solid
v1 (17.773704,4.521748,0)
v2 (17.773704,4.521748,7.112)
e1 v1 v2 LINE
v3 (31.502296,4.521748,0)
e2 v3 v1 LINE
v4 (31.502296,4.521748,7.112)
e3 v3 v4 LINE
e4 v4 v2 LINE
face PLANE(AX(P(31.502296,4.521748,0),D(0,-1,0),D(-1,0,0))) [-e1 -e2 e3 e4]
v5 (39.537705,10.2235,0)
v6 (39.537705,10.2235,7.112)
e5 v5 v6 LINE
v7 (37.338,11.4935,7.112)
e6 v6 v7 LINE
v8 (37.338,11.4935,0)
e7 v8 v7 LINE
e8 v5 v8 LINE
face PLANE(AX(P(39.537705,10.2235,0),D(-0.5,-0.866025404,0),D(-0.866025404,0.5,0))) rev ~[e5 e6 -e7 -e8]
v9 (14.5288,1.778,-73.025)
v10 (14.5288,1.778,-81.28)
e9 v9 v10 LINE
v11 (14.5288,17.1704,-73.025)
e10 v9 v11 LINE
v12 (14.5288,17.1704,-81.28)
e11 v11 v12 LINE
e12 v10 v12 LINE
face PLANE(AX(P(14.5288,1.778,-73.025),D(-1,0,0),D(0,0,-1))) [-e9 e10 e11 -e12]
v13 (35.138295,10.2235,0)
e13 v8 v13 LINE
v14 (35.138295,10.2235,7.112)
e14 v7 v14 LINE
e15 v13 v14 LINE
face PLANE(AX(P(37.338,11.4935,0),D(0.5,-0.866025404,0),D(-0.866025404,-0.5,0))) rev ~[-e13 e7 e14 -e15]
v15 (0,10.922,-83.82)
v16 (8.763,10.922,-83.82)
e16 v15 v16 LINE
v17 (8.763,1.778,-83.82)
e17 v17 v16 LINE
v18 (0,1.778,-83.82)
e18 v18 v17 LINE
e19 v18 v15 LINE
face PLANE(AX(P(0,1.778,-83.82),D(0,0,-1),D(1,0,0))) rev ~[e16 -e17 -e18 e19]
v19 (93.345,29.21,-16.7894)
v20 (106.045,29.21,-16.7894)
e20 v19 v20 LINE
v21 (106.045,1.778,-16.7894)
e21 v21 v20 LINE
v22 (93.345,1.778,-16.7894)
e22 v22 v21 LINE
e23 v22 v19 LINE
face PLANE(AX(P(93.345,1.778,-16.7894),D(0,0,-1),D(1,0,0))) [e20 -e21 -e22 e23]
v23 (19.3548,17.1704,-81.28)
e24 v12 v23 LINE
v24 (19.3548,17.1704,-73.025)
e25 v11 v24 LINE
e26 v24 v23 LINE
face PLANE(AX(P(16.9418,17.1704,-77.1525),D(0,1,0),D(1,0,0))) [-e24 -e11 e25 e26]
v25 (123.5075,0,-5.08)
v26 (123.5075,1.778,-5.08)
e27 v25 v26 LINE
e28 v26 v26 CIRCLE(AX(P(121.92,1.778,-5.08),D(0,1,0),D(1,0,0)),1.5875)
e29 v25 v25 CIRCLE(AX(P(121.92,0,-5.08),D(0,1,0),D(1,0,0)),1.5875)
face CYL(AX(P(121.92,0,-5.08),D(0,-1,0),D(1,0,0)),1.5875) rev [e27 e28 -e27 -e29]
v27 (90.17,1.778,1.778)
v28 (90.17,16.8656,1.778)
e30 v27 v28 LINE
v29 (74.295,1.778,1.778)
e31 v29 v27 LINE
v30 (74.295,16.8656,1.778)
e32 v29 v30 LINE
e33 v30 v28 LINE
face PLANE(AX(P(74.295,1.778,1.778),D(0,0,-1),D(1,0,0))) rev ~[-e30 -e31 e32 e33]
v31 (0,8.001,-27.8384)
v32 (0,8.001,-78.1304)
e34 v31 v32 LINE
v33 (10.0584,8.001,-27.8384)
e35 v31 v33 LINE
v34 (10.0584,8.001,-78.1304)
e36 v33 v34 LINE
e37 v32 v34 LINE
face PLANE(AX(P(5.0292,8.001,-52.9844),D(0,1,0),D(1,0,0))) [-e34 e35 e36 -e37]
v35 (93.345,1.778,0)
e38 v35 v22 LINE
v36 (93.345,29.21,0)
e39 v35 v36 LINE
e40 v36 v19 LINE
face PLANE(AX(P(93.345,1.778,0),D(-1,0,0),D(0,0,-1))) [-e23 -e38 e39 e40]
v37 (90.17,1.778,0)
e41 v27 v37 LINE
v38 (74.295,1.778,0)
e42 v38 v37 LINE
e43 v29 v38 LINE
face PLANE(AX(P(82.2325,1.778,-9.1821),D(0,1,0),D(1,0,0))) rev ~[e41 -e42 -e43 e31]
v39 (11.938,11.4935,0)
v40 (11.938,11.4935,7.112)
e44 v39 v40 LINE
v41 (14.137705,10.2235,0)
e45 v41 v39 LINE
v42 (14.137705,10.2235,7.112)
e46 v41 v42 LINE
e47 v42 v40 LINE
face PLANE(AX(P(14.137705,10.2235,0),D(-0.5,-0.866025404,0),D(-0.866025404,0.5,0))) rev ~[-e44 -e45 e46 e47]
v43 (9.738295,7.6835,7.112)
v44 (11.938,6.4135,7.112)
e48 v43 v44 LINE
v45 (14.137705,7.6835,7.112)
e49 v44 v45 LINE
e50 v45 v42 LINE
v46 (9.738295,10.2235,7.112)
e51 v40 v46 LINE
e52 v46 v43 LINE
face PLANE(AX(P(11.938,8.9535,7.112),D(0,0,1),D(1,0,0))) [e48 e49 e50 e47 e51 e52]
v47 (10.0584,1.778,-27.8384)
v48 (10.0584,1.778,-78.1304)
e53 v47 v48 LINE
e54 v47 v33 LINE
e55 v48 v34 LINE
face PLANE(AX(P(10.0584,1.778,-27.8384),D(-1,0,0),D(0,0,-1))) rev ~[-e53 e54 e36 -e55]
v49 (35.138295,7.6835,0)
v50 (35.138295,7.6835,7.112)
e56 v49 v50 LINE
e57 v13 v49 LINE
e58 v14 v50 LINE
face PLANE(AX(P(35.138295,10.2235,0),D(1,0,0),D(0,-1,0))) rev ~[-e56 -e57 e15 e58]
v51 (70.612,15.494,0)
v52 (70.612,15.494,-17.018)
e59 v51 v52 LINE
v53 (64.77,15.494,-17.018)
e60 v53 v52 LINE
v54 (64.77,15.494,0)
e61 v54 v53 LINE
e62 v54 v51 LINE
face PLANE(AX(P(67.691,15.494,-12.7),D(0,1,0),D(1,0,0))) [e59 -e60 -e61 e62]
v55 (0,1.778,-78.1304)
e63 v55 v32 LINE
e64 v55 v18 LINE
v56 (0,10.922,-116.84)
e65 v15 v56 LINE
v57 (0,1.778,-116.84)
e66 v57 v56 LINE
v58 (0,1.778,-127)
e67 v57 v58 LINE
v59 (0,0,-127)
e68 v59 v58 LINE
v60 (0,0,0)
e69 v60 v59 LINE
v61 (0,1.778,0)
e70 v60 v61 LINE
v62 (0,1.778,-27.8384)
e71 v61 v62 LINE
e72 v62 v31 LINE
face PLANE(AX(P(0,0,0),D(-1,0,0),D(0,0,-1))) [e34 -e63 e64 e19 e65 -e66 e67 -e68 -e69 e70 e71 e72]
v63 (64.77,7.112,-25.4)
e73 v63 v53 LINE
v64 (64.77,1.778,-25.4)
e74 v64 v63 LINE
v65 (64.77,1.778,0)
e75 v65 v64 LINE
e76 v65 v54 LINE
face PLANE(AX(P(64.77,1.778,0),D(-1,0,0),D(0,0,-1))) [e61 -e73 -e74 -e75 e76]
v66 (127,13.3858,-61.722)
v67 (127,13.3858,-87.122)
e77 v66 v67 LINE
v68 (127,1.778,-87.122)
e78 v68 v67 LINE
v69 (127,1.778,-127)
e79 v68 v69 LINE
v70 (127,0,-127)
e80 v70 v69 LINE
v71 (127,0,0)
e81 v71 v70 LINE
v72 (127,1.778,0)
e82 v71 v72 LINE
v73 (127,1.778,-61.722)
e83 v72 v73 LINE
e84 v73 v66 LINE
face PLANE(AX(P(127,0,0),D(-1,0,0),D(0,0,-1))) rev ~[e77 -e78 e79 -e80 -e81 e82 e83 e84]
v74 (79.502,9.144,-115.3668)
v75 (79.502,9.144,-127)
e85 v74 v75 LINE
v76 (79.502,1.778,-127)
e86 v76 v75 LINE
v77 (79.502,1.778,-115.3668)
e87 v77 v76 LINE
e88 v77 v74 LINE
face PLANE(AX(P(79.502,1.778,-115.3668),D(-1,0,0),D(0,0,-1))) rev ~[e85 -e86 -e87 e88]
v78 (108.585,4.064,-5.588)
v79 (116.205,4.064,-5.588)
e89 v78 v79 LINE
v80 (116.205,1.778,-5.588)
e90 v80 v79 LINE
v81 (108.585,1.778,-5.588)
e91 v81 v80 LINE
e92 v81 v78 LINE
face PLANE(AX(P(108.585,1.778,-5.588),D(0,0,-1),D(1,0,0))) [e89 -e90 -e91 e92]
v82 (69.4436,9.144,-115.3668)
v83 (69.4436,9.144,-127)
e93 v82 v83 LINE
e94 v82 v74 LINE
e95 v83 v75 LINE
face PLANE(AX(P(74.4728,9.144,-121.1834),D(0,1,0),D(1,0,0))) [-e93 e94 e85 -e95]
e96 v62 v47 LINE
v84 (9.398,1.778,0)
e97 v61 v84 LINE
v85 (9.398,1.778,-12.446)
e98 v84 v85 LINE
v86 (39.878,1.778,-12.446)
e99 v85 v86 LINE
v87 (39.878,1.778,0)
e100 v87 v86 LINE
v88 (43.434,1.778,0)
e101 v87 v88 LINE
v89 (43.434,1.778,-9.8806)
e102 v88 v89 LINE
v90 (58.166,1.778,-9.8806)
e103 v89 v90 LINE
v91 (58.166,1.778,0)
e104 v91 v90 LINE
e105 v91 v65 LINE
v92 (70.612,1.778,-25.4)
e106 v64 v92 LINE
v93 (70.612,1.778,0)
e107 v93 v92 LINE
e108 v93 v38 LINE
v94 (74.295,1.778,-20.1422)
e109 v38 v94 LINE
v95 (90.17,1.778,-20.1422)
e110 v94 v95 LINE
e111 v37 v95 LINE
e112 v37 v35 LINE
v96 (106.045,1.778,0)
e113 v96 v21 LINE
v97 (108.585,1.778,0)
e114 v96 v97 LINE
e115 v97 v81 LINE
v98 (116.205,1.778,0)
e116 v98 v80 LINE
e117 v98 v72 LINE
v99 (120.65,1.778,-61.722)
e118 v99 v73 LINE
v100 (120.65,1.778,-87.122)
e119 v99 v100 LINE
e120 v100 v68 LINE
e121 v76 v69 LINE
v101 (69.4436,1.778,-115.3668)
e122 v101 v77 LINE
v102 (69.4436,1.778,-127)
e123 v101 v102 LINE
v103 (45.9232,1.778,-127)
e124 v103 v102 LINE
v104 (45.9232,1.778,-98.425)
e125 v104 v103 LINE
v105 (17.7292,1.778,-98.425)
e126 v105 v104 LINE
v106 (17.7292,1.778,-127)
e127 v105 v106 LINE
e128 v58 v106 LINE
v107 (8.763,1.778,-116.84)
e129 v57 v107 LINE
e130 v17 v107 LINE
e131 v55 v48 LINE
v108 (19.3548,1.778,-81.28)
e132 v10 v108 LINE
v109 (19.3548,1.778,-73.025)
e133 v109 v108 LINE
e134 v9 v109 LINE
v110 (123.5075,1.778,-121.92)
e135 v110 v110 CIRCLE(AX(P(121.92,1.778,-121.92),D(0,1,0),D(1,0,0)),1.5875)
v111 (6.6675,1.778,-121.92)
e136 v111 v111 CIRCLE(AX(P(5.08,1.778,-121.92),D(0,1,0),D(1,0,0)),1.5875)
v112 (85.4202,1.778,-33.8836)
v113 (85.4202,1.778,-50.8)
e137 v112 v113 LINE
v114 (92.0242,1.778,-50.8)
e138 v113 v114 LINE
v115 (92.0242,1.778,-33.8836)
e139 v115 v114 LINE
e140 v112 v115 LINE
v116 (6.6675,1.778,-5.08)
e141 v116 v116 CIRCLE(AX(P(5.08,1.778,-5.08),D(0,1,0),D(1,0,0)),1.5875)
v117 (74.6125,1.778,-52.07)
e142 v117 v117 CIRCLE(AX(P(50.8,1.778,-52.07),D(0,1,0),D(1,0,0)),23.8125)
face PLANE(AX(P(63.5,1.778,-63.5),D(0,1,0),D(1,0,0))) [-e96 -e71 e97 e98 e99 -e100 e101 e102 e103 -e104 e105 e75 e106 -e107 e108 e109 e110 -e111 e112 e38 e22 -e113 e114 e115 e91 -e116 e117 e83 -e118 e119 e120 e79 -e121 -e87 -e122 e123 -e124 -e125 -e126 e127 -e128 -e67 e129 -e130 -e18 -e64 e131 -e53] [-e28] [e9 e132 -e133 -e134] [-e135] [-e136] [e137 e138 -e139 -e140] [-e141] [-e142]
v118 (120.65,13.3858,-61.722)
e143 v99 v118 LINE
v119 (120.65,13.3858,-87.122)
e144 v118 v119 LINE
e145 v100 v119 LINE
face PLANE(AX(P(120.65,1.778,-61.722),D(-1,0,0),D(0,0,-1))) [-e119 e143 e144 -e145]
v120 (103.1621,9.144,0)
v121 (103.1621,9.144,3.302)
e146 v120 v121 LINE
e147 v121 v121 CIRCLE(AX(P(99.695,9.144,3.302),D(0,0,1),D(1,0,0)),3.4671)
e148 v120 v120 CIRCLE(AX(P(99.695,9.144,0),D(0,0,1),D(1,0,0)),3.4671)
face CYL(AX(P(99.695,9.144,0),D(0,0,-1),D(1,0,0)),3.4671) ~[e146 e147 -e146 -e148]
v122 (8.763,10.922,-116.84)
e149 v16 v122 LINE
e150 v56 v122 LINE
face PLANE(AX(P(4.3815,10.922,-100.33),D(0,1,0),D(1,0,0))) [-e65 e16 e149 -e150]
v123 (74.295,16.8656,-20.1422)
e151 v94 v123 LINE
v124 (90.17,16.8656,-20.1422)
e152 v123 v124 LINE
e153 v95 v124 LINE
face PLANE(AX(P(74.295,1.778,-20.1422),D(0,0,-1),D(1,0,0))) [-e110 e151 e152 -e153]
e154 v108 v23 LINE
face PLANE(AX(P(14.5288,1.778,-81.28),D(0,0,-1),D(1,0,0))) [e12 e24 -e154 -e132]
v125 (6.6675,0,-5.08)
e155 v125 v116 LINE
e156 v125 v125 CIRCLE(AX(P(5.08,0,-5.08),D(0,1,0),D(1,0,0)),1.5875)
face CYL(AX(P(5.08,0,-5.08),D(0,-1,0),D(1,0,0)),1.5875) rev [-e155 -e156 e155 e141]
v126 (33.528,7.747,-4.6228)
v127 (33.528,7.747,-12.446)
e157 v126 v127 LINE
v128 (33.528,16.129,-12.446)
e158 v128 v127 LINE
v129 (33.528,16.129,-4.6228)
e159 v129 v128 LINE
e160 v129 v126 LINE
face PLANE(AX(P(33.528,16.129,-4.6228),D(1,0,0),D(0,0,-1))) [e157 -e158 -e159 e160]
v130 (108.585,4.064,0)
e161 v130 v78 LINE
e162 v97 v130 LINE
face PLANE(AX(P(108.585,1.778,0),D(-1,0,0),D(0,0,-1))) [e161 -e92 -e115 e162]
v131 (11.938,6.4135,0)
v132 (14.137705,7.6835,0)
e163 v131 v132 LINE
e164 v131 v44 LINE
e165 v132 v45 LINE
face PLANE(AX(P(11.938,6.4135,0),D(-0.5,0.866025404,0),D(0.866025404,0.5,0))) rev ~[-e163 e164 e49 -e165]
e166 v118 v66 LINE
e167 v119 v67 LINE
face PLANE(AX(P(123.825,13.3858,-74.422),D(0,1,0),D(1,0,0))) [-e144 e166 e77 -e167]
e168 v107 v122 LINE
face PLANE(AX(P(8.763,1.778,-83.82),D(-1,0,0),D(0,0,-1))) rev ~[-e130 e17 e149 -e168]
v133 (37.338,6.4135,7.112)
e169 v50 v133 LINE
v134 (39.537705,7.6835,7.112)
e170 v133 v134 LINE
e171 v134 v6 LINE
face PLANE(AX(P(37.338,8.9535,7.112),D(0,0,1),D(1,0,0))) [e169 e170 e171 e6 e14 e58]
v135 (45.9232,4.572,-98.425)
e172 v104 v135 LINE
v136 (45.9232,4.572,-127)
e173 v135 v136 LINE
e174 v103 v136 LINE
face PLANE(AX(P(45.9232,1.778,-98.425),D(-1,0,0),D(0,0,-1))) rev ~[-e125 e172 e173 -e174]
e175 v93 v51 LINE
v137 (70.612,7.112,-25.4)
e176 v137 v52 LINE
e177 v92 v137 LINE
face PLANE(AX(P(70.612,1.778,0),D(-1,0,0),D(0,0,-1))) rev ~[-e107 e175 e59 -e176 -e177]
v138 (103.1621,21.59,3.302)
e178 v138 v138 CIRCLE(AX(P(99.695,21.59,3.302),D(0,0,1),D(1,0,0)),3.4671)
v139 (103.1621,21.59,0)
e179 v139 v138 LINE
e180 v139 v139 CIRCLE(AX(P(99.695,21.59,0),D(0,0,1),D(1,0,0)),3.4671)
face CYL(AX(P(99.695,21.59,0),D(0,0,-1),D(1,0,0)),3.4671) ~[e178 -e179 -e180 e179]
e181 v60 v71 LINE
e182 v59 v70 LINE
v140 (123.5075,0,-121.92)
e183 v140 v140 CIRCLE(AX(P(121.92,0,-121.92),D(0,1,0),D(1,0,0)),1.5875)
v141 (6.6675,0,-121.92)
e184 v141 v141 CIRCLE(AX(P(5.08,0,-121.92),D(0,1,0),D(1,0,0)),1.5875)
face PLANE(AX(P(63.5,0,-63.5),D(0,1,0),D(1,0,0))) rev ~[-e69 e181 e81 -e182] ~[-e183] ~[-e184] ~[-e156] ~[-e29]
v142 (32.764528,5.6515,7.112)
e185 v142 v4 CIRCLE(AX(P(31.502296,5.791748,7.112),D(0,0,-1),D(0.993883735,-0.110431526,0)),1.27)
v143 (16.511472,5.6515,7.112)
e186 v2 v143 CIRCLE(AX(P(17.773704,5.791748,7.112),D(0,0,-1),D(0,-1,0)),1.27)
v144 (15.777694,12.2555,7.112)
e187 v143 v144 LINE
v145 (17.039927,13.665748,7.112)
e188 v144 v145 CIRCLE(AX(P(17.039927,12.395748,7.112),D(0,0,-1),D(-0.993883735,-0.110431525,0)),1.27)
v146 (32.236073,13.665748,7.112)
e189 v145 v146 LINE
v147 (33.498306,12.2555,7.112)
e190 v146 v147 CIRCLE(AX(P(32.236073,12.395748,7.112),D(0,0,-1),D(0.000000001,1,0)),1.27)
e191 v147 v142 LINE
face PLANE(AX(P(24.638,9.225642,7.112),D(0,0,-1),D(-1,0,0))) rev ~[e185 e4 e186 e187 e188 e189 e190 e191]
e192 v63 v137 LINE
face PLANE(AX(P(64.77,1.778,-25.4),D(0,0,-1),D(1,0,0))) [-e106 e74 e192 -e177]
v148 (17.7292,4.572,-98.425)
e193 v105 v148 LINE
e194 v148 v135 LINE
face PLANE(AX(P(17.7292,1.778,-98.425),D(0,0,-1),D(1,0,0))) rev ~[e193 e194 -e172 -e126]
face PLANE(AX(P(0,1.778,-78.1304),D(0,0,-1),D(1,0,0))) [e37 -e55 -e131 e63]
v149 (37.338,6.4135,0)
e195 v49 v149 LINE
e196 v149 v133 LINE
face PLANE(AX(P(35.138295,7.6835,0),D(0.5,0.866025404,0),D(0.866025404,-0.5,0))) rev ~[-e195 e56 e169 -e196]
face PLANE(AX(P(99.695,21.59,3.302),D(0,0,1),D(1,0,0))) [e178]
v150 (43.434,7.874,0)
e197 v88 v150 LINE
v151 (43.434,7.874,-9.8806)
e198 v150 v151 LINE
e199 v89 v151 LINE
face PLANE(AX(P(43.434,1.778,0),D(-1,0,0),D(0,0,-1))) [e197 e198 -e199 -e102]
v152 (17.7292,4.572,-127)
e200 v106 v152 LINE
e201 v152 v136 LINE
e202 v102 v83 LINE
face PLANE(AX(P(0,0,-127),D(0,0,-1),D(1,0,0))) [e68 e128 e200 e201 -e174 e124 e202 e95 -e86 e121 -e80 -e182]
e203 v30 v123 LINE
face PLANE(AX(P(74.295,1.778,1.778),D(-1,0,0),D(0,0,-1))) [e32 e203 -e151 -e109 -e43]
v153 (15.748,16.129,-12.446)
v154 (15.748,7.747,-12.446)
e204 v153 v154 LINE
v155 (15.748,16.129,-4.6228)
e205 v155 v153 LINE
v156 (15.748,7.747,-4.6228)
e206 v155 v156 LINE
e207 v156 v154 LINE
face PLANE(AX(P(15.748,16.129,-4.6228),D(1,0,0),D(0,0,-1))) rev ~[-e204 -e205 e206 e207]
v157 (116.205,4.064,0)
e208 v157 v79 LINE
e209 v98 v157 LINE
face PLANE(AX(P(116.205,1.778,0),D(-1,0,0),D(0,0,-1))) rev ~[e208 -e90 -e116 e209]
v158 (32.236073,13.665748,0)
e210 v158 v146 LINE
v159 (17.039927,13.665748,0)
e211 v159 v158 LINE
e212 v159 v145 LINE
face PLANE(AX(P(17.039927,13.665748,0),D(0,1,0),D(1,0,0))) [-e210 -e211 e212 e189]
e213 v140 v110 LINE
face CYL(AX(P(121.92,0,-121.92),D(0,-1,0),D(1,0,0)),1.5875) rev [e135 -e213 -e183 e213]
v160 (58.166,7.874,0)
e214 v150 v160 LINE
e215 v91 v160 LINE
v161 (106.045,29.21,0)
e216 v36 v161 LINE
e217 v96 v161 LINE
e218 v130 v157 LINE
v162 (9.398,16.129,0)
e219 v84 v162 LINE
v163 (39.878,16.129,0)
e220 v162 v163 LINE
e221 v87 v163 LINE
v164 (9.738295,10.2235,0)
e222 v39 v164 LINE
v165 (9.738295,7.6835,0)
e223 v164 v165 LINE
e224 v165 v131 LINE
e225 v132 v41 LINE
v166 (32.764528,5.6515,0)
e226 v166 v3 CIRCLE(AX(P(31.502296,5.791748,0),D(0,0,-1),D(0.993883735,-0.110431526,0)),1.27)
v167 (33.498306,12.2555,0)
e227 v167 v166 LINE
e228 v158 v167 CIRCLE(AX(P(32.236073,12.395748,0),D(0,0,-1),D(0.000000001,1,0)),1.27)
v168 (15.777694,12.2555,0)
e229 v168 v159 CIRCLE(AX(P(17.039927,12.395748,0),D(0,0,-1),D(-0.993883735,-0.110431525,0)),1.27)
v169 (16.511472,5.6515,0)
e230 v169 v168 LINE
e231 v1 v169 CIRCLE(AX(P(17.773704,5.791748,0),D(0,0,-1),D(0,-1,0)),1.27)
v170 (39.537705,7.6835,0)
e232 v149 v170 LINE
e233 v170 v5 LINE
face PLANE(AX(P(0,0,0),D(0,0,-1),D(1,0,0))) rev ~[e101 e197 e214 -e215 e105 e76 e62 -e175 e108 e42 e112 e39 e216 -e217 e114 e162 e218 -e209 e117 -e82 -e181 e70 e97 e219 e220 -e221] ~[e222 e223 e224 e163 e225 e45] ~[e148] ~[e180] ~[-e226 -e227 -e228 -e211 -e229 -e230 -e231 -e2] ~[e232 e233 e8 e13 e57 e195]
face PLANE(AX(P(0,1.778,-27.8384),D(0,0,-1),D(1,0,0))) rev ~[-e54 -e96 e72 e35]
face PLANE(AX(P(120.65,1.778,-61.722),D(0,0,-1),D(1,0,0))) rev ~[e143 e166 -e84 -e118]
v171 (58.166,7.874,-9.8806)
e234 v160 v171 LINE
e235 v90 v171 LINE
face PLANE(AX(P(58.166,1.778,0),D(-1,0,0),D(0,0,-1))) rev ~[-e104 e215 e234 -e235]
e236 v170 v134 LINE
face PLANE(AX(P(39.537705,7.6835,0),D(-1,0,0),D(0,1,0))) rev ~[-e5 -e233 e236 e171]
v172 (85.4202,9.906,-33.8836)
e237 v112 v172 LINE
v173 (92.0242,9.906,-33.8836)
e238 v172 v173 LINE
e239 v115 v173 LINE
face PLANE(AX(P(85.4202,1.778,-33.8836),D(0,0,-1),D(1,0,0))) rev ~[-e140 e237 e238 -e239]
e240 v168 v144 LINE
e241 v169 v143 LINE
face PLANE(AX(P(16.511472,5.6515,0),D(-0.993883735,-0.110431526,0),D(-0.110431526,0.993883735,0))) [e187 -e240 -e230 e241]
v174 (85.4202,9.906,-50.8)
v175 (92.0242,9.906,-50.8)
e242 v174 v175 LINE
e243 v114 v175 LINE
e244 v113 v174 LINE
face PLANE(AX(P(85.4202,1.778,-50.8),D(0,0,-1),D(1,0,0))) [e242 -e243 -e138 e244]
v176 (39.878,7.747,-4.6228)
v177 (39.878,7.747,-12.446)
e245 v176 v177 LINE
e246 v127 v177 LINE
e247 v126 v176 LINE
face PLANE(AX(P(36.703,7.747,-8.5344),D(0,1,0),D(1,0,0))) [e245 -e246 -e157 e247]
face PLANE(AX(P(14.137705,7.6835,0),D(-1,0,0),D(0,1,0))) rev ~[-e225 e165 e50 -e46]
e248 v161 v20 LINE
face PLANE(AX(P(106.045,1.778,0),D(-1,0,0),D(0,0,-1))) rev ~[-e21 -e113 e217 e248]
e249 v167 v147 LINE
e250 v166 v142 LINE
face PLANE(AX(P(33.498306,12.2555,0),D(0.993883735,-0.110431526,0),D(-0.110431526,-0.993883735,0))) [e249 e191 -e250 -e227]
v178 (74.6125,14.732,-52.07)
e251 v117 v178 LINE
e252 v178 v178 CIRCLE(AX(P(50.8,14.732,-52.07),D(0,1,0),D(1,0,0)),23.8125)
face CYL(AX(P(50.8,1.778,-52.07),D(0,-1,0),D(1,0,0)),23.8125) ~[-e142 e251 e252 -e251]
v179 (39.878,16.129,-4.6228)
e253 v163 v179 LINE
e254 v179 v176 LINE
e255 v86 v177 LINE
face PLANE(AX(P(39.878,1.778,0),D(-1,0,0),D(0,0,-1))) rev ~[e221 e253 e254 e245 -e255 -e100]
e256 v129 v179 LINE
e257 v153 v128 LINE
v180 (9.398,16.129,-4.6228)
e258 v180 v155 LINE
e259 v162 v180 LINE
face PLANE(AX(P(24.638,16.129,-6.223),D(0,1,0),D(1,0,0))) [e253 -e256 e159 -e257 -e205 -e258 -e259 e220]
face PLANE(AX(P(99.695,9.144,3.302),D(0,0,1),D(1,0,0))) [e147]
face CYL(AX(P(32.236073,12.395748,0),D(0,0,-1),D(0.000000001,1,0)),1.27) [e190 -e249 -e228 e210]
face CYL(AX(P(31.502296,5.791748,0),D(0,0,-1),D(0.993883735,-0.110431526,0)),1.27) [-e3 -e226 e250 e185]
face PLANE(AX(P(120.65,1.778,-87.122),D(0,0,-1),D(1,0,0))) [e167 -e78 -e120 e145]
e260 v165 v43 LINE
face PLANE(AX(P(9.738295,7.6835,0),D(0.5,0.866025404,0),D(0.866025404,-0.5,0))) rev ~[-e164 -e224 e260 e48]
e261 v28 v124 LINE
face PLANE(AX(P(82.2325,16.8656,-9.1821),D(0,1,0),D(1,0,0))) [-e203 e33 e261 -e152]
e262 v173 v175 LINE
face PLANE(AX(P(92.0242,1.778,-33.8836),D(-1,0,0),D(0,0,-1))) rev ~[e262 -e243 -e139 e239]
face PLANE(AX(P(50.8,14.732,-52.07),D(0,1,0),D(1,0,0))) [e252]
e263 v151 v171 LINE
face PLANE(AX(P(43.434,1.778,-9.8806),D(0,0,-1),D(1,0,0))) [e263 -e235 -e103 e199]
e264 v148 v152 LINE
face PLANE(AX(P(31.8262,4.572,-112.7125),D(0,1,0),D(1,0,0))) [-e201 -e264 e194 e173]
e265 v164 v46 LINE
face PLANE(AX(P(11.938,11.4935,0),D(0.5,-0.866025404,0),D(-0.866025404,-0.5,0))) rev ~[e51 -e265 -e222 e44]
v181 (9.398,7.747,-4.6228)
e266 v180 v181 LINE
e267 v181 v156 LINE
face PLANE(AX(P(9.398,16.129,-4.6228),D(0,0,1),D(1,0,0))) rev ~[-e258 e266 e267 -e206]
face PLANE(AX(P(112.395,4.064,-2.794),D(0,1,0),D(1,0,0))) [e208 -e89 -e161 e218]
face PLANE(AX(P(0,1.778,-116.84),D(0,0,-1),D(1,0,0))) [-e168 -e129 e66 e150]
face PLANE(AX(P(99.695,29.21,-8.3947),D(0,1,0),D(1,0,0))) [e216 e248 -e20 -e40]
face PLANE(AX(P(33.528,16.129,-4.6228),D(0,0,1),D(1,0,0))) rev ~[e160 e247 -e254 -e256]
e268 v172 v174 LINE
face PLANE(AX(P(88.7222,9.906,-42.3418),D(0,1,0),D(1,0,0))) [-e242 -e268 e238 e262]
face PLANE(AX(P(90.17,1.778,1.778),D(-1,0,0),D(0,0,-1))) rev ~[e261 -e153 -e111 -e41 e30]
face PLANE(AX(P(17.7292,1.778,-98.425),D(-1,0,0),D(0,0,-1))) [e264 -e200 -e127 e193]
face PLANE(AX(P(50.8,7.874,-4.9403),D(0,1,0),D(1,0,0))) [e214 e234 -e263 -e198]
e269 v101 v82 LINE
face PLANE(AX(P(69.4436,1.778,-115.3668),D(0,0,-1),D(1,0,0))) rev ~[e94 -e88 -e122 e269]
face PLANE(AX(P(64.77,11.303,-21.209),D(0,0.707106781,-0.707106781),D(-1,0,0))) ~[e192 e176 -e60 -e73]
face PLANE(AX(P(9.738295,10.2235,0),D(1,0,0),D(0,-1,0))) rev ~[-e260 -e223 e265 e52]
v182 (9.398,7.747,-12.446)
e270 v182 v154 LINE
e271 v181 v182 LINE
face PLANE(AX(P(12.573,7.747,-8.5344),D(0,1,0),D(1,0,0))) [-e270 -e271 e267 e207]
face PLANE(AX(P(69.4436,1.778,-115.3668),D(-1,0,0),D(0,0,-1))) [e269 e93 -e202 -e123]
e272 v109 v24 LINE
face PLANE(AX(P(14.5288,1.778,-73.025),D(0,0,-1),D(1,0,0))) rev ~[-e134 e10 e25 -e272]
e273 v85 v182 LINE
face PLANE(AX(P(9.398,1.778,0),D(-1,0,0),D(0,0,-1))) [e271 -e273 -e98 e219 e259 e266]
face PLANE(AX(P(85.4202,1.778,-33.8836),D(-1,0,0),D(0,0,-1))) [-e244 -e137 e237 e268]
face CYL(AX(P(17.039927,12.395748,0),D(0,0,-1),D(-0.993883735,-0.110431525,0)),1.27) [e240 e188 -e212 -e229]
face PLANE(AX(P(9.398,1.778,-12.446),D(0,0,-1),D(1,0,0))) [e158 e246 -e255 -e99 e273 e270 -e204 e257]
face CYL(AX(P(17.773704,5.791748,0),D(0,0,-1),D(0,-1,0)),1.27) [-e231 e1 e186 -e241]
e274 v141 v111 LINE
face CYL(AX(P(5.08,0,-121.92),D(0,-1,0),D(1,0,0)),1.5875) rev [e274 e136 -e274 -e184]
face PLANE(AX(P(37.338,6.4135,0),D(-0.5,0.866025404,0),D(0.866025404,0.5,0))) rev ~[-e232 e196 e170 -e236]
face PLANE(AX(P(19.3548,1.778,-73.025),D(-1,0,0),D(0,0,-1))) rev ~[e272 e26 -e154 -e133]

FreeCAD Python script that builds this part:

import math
import FreeCAD as App
import Part
import Sketcher

V = App.Vector
Q = App.Units.Quantity


def edges_at(feature, points):
    """Names of the edges that pass closest to the given points."""
    edges = feature.Shape.Edges
    near = lambda p: min(range(len(edges)), key=lambda i: edges[i].distToShape(Part.Vertex(*p))[0])
    return sorted({f"Edge{near(p) + 1}" for p in points})


def add_polygon(sketch, points):
    """Adds a closed chain of lines whose ends are joined by coincident constraints."""
    first, n = sketch.GeometryCount, len(points)
    for a, b in zip(points, points[1:] + points[:1]):
        sketch.addGeometry(Part.LineSegment(App.Vector(*a, 0), App.Vector(*b, 0)), False)
    for i in range(n):
        sketch.addConstraint(Sketcher.Constraint("Coincident", first + i, 2, first + (i + 1) % n, 1))

doc = App.newDocument("Part")
body = doc.addObject("PartDesign::Body", "Body")

# Sketch on XZ plane
sketch1 = body.newObject("Sketcher::SketchObject", "Sketch")
sketch1.AttachmentSupport = (doc.getObject("XZ_Plane"), [""])
sketch1.MapMode = "FlatFace"
add_polygon(sketch1, [(0, -127), (0, 0), (127, 0), (127, -127)])  # lines 0-3
sketch1.addGeometry(Part.Circle(V(5.08, -5.08, 0), V(0, 0, 1), 1.5875), False)  # 4
sketch1.addGeometry(Part.Circle(V(121.92, -5.08, 0), V(0, 0, 1), 1.5875), False)  # 5
sketch1.addGeometry(Part.Circle(V(5.08, -121.92, 0), V(0, 0, 1), 1.5875), False)  # 6
sketch1.addGeometry(Part.Circle(V(121.92, -121.92, 0), V(0, 0, 1), 1.5875), False)  # 7
sketch1.addConstraint([
    Sketcher.Constraint("Vertical", 0),
    Sketcher.Constraint("Horizontal", 1),
    Sketcher.Constraint("Vertical", 2),
    Sketcher.Constraint("Horizontal", 3),
    Sketcher.Constraint("Coincident", 0, 2, -1, 1),
    Sketcher.Constraint("Equal", 4, 5),
    Sketcher.Constraint("Equal", 5, 6),
    Sketcher.Constraint("Equal", 6, 7),
    Sketcher.Constraint("Horizontal", 4, 3, 5, 3),
    Sketcher.Constraint("Horizontal", 6, 3, 7, 3),
    Sketcher.Constraint("Vertical", 4, 3, 6, 3),
    Sketcher.Constraint("Vertical", 5, 3, 7, 3),
    Sketcher.Constraint("Equal", 3, 0),
    Sketcher.Constraint("DistanceX", 1, 1, 1, 2, Q("5 in")),
    Sketcher.Constraint("Diameter", 4, Q("0.125 in")),
    Sketcher.Constraint("DistanceX", -1, 1, 4, 3, Q("0.2 in")),
    Sketcher.Constraint("DistanceY", 4, 3, -1, 1, Q("0.2 in")),
    Sketcher.Constraint("DistanceX", -1, 1, 5, 3, Q("4.8 in")),
    Sketcher.Constraint("DistanceY", 6, 3, -1, 1, Q("4.8 in")),
])
pad1 = body.newObject("PartDesign::Pad", "Pad")
pad1.Profile = sketch1
pad1.Length = Q("0.07 in")
pad1.Reversed = True

# Sketch on XZ plane
sketch2 = body.newObject("Sketcher::SketchObject", "Sketch001")
sketch2.AttachmentSupport = (doc.getObject("XZ_Plane"), [""])
sketch2.MapMode = "FlatFace"
sketch2.AttachmentOffset = App.Placement(V(0, 0, -0.07 * 25.4), App.Rotation())
add_polygon(sketch2, [(17.7292, -127), (17.7292, -98.425), (45.9232, -98.425), (45.9232, -127)])  # lines 0-3
sketch2.addConstraint([
    Sketcher.Constraint("Vertical", 0),
    Sketcher.Constraint("Horizontal", 1),
    Sketcher.Constraint("Vertical", 2),
    Sketcher.Constraint("Horizontal", 3),
    Sketcher.Constraint("DistanceY", 2, 2, -1, 1, Q("5 in")),
    Sketcher.Constraint("DistanceX", 1, 1, 1, 2, Q("1.11 in")),
    Sketcher.Constraint("DistanceY", 0, 1, 0, 2, Q("1.125 in")),
    Sketcher.Constraint("DistanceX", -1, 1, 0, 2, Q("0.698 in")),
])
pad2 = body.newObject("PartDesign::Pad", "Pad001")
pad2.Profile = sketch2
pad2.Length = Q("0.11 in")
pad2.Reversed = True

# Sketch on XZ plane
sketch3 = body.newObject("Sketcher::SketchObject", "Sketch002")
sketch3.AttachmentSupport = (doc.getObject("XZ_Plane"), [""])
sketch3.MapMode = "FlatFace"
sketch3.AttachmentOffset = App.Placement(V(0, 0, -0.07 * 25.4), App.Rotation())
add_polygon(sketch3, [(69.4436, -127), (69.4436, -115.3668), (79.502, -115.3668), (79.502, -127)])  # lines 0-3
sketch3.addConstraint([
    Sketcher.Constraint("Vertical", 0),
    Sketcher.Constraint("Horizontal", 1),
    Sketcher.Constraint("Vertical", 2),
    Sketcher.Constraint("Horizontal", 3),
    Sketcher.Constraint("DistanceY", 2, 2, -1, 1, Q("5 in")),
    Sketcher.Constraint("DistanceX", 1, 1, 1, 2, Q("0.396 in")),
    Sketcher.Constraint("DistanceY", 0, 1, 0, 2, Q("0.458 in")),
    Sketcher.Constraint("DistanceX", -1, 1, 1, 2, Q("3.13 in")),
])
pad3 = body.newObject("PartDesign::Pad", "Pad002")
pad3.Profile = sketch3
pad3.Length = Q("0.29 in")
pad3.Reversed = True

# Sketch on XZ plane
sketch4 = body.newObject("Sketcher::SketchObject", "Sketch003")
sketch4.AttachmentSupport = (doc.getObject("XZ_Plane"), [""])
sketch4.MapMode = "FlatFace"
sketch4.AttachmentOffset = App.Placement(V(0, 0, -0.07 * 25.4), App.Rotation())
add_polygon(sketch4, [(120.65, -87.122), (120.65, -61.722), (127, -61.722), (127, -87.122)])  # lines 0-3
sketch4.addConstraint([
    Sketcher.Constraint("Vertical", 0),
    Sketcher.Constraint("Horizontal", 1),
    Sketcher.Constraint("Vertical", 2),
    Sketcher.Constraint("Horizontal", 3),
    Sketcher.Constraint("DistanceY", 0, 1, 0, 2, Q("1 in")),
    Sketcher.Constraint("DistanceX", -1, 1, 1, 2, Q("5 in")),
    Sketcher.Constraint("DistanceX", 1, 1, 1, 2, Q("0.25 in")),
    Sketcher.Constraint("DistanceY", 0, 2, -1, 1, Q("2.43 in")),
])
pad4 = body.newObject("PartDesign::Pad", "Pad003")
pad4.Profile = sketch4
pad4.Length = Q("0.457 in")
pad4.Reversed = True

# Sketch on XZ plane
sketch5 = body.newObject("Sketcher::SketchObject", "Sketch004")
sketch5.AttachmentSupport = (doc.getObject("XZ_Plane"), [""])
sketch5.MapMode = "FlatFace"
sketch5.AttachmentOffset = App.Placement(V(0, 0, -0.07 * 25.4), App.Rotation())
add_polygon(sketch5, [(0, -116.84), (0, -83.82), (8.763, -83.82), (8.763, -116.84)])  # lines 0-3
sketch5.addConstraint([
    Sketcher.Constraint("Vertical", 0),
    Sketcher.Constraint("Horizontal", 1),
    Sketcher.Constraint("Vertical", 2),
    Sketcher.Constraint("Horizontal", 3),
    Sketcher.Constraint("PointOnObject", 0, 2, -2),
    Sketcher.Constraint("DistanceY", 0, 1, 0, 2, Q("1.3 in")),
    Sketcher.Constraint("DistanceY", 0, 2, -1, 1, Q("3.3 in")),
    Sketcher.Constraint("DistanceX", 1, 1, 1, 2, Q("0.345 in")),
])
pad5 = body.newObject("PartDesign::Pad", "Pad004")
pad5.Profile = sketch5
pad5.Length = Q("0.36 in")
pad5.Reversed = True

# Sketch on XZ plane
sketch6 = body.newObject("Sketcher::SketchObject", "Sketch005")
sketch6.AttachmentSupport = (doc.getObject("XZ_Plane"), [""])
sketch6.MapMode = "FlatFace"
sketch6.AttachmentOffset = App.Placement(V(0, 0, -0.07 * 25.4), App.Rotation())
add_polygon(sketch6, [(0, -78.1304), (0, -27.8384), (10.0584, -27.8384), (10.0584, -78.1304)])  # lines 0-3
sketch6.addConstraint([
    Sketcher.Constraint("Vertical", 0),
    Sketcher.Constraint("Horizontal", 1),
    Sketcher.Constraint("Vertical", 2),
    Sketcher.Constraint("Horizontal", 3),
    Sketcher.Constraint("PointOnObject", 0, 2, -2),
    Sketcher.Constraint("DistanceY", 0, 1, 0, 2, Q("1.98 in")),
    Sketcher.Constraint("DistanceX", 1, 1, 1, 2, Q("0.396 in")),
    Sketcher.Constraint("DistanceY", 0, 2, -1, 1, Q("1.096 in")),
])
pad6 = body.newObject("PartDesign::Pad", "Pad005")
pad6.Profile = sketch6
pad6.Length = Q("0.245 in")
pad6.Reversed = True

# Sketch on XZ plane
sketch7 = body.newObject("Sketcher::SketchObject", "Sketch006")
sketch7.AttachmentSupport = (doc.getObject("XZ_Plane"), [""])
sketch7.MapMode = "FlatFace"
sketch7.AttachmentOffset = App.Placement(V(0, 0, -0.07 * 25.4), App.Rotation())
add_polygon(sketch7, [(14.5288, -81.28), (14.5288, -73.025), (19.3548, -73.025), (19.3548, -81.28)])  # lines 0-3
sketch7.addConstraint([
    Sketcher.Constraint("Vertical", 0),
    Sketcher.Constraint("Horizontal", 1),
    Sketcher.Constraint("Vertical", 2),
    Sketcher.Constraint("Horizontal", 3),
    Sketcher.Constraint("DistanceX", 1, 1, 1, 2, Q("0.19 in")),
    Sketcher.Constraint("DistanceY", 2, 2, -1, 1, Q("3.2 in")),
    Sketcher.Constraint("DistanceY", 0, 1, 0, 2, Q("0.325 in")),
    Sketcher.Constraint("DistanceX", -1, 1, 0, 2, Q("0.572 in")),
])
pad7 = body.newObject("PartDesign::Pad", "Pad006")
pad7.Profile = sketch7
pad7.Length = Q("0.606 in")
pad7.Reversed = True

# Sketch on XZ plane
sketch8 = body.newObject("Sketcher::SketchObject", "Sketch007")
sketch8.AttachmentSupport = (doc.getObject("XZ_Plane"), [""])
sketch8.MapMode = "FlatFace"
sketch8.AttachmentOffset = App.Placement(V(0, 0, -0.07 * 25.4), App.Rotation())
add_polygon(sketch8, [(108.585, -5.588), (108.585, 0), (116.205, 0), (116.205, -5.588)])  # lines 0-3
sketch8.addConstraint([
    Sketcher.Constraint("Vertical", 0),
    Sketcher.Constraint("Horizontal", 1),
    Sketcher.Constraint("Vertical", 2),
    Sketcher.Constraint("Horizontal", 3),
    Sketcher.Constraint("PointOnObject", 0, 2, -1),
    Sketcher.Constraint("DistanceX", 1, 1, 1, 2, Q("0.3 in")),
    Sketcher.Constraint("DistanceY", 0, 1, 0, 2, Q("0.22 in")),
    Sketcher.Constraint("DistanceX", -1, 1, 0, 2, Q("4.275 in")),
])
pad8 = body.newObject("PartDesign::Pad", "Pad007")
pad8.Profile = sketch8
pad8.Length = Q("0.09 in")
pad8.Reversed = True

# Sketch on XZ plane
sketch9 = body.newObject("Sketcher::SketchObject", "Sketch008")
sketch9.AttachmentSupport = (doc.getObject("XZ_Plane"), [""])
sketch9.MapMode = "FlatFace"
sketch9.AttachmentOffset = App.Placement(V(0, 0, -0.07 * 25.4), App.Rotation())
sketch9.addGeometry(Part.Circle(V(50.8, -52.07, 0), V(0, 0, 1), 23.8125), False)
sketch9.addConstraint([
    Sketcher.Constraint("Diameter", 0, Q("1.875 in")),
    Sketcher.Constraint("DistanceX", -1, 1, 0, 3, Q("2 in")),
    Sketcher.Constraint("DistanceY", 0, 3, -1, 1, Q("2.05 in")),
])
pad9 = body.newObject("PartDesign::Pad", "Pad008")
pad9.Profile = sketch9
pad9.Length = Q("0.51 in")
pad9.Reversed = True

# Sketch on XZ plane
sketch10 = body.newObject("Sketcher::SketchObject", "Sketch009")
sketch10.AttachmentSupport = (doc.getObject("XZ_Plane"), [""])
sketch10.MapMode = "FlatFace"
sketch10.AttachmentOffset = App.Placement(V(0, 0, -0.07 * 25.4), App.Rotation())
add_polygon(sketch10, [(93.345, -16.7894), (93.345, 0), (106.045, 0), (106.045, -16.7894)])  # lines 0-3
sketch10.addConstraint([
    Sketcher.Constraint("Vertical", 0),
    Sketcher.Constraint("Horizontal", 1),
    Sketcher.Constraint("Vertical", 2),
    Sketcher.Constraint("Horizontal", 3),
    Sketcher.Constraint("PointOnObject", 0, 2, -1),
    Sketcher.Constraint("DistanceX", 1, 1, 1, 2, Q("0.5 in")),
    Sketcher.Constraint("DistanceY", 0, 1, 0, 2, Q("0.661 in")),
    Sketcher.Constraint("DistanceX", -1, 1, 0, 2, Q("3.675 in")),
])
pad10 = body.newObject("PartDesign::Pad", "Pad009")
pad10.Profile = sketch10
pad10.Length = Q("1.08 in")
pad10.Reversed = True

# Sketch on XY plane
sketch11 = body.newObject("Sketcher::SketchObject", "Sketch010")
sketch11.AttachmentSupport = (doc.getObject("XY_Plane"), [""])
sketch11.MapMode = "FlatFace"
sketch11.addGeometry([
    Part.Circle(V(99.695, 21.59, 0), V(0, 0, 1), 3.4671),
    Part.Circle(V(99.695, 9.144, 0), V(0, 0, 1), 3.4671),
], False)
sketch11.addConstraint([
    Sketcher.Constraint("Equal", 0, 1),
    Sketcher.Constraint("Vertical", 0, 3, 1, 3),
    Sketcher.Constraint("Diameter", 0, Q("0.273 in")),
    Sketcher.Constraint("DistanceY", -1, 1, 0, 3, Q("0.85 in")),
    Sketcher.Constraint("DistanceY", -1, 1, 1, 3, Q("0.36 in")),
    Sketcher.Constraint("DistanceX", -1, 1, 0, 3, Q("3.925 in")),
])
pad11 = body.newObject("PartDesign::Pad", "Pad010")
pad11.Profile = sketch11
pad11.Length = Q("0.13 in")

# Sketch on XZ plane
sketch12 = body.newObject("Sketcher::SketchObject", "Sketch011")
sketch12.AttachmentSupport = (doc.getObject("XZ_Plane"), [""])
sketch12.MapMode = "FlatFace"
sketch12.AttachmentOffset = App.Placement(V(0, 0, -0.07 * 25.4), App.Rotation())
add_polygon(sketch12, [(74.295, -20.1422), (74.295, 1.778), (90.17, 1.778), (90.17, -20.1422)])  # lines 0-3
sketch12.addConstraint([
    Sketcher.Constraint("Vertical", 0),
    Sketcher.Constraint("Horizontal", 1),
    Sketcher.Constraint("Vertical", 2),
    Sketcher.Constraint("Horizontal", 3),
    Sketcher.Constraint("DistanceX", 1, 1, 1, 2, Q("0.625 in")),
    Sketcher.Constraint("DistanceY", 0, 1, 0, 2, Q("0.863 in")),
    Sketcher.Constraint("DistanceY", -1, 1, 0, 2, Q("0.07 in")),
    Sketcher.Constraint("DistanceX", -1, 1, 1, 2, Q("3.55 in")),
])
pad12 = body.newObject("PartDesign::Pad", "Pad011")
pad12.Profile = sketch12
pad12.Length = Q("0.594 in")
pad12.Reversed = True

# Sketch on XZ plane
sketch13 = body.newObject("Sketcher::SketchObject", "Sketch012")
sketch13.AttachmentSupport = (doc.getObject("XZ_Plane"), [""])
sketch13.MapMode = "FlatFace"
sketch13.AttachmentOffset = App.Placement(V(0, 0, -0.07 * 25.4), App.Rotation())
add_polygon(sketch13, [(64.77, -25.4), (64.77, 0), (70.612, 0), (70.612, -25.4)])  # lines 0-3
sketch13.addConstraint([
    Sketcher.Constraint("Vertical", 0),
    Sketcher.Constraint("Horizontal", 1),
    Sketcher.Constraint("Vertical", 2),
    Sketcher.Constraint("Horizontal", 3),
    Sketcher.Constraint("PointOnObject", 0, 2, -1),
    Sketcher.Constraint("DistanceY", 0, 1, 0, 2, Q("1 in")),
    Sketcher.Constraint("DistanceX", 1, 1, 1, 2, Q("0.23 in")),
    Sketcher.Constraint("DistanceX", -1, 1, 0, 2, Q("2.55 in")),
])
pad13 = body.newObject("PartDesign::Pad", "Pad012")
pad13.Profile = sketch13
pad13.Length = Q("0.54 in")
pad13.Reversed = True
doc.recompute()

chamfer = body.newObject("PartDesign::Chamfer", "Chamfer")
chamfer.Base = (pad13, edges_at(pad13, [(67.691, 15.494, -25.4)]))
chamfer.Size = Q("0.33 in")

# Sketch on XZ plane
sketch14 = body.newObject("Sketcher::SketchObject", "Sketch013")
sketch14.AttachmentSupport = (doc.getObject("XZ_Plane"), [""])
sketch14.MapMode = "FlatFace"
sketch14.AttachmentOffset = App.Placement(V(0, 0, -0.07 * 25.4), App.Rotation())
add_polygon(sketch14, [(43.434, -9.8806), (43.434, 0), (58.166, 0), (58.166, -9.8806)])  # lines 0-3
sketch14.addConstraint([
    Sketcher.Constraint("Vertical", 0),
    Sketcher.Constraint("Horizontal", 1),
    Sketcher.Constraint("Vertical", 2),
    Sketcher.Constraint("Horizontal", 3),
    Sketcher.Constraint("PointOnObject", 0, 2, -1),
    Sketcher.Constraint("DistanceX", 1, 1, 1, 2, Q("0.58 in")),
    Sketcher.Constraint("DistanceY", 0, 1, 0, 2, Q("0.389 in")),
    Sketcher.Constraint("DistanceX", -1, 1, 0, 2, Q("1.71 in")),
])
pad14 = body.newObject("PartDesign::Pad", "Pad013")
pad14.Profile = sketch14
pad14.Length = Q("0.24 in")
pad14.Reversed = True

# Sketch on XZ plane
sketch15 = body.newObject("Sketcher::SketchObject", "Sketch014")
sketch15.AttachmentSupport = (doc.getObject("XZ_Plane"), [""])
sketch15.MapMode = "FlatFace"
sketch15.AttachmentOffset = App.Placement(V(0, 0, -0.07 * 25.4), App.Rotation())
add_polygon(sketch15, [(85.4202, -50.8), (85.4202, -33.8836), (92.0242, -33.8836), (92.0242, -50.8)])  # lines 0-3
sketch15.addConstraint([
    Sketcher.Constraint("Vertical", 0),
    Sketcher.Constraint("Horizontal", 1),
    Sketcher.Constraint("Vertical", 2),
    Sketcher.Constraint("Horizontal", 3),
    Sketcher.Constraint("DistanceY", 2, 2, -1, 1, Q("2 in")),
    Sketcher.Constraint("DistanceX", 1, 1, 1, 2, Q("0.26 in")),
    Sketcher.Constraint("DistanceY", 0, 1, 0, 2, Q("0.666 in")),
    Sketcher.Constraint("DistanceX", -1, 1, 0, 2, Q("3.363 in")),
])
pad15 = body.newObject("PartDesign::Pad", "Pad014")
pad15.Profile = sketch15
pad15.Length = Q("0.32 in")
pad15.Reversed = True

# Sketch on XZ plane
sketch16 = body.newObject("Sketcher::SketchObject", "Sketch015")
sketch16.AttachmentSupport = (doc.getObject("XZ_Plane"), [""])
sketch16.MapMode = "FlatFace"
sketch16.AttachmentOffset = App.Placement(V(0, 0, -0.07 * 25.4), App.Rotation())
add_polygon(sketch16, [(9.398, -12.446), (9.398, 0), (39.878, 0), (39.878, -12.446)])  # lines 0-3
sketch16.addConstraint([
    Sketcher.Constraint("Vertical", 0),
    Sketcher.Constraint("Horizontal", 1),
    Sketcher.Constraint("Vertical", 2),
    Sketcher.Constraint("Horizontal", 3),
    Sketcher.Constraint("PointOnObject", 0, 2, -1),
    Sketcher.Constraint("DistanceX", 1, 1, 1, 2, Q("1.2 in")),
    Sketcher.Constraint("DistanceY", 0, 1, 0, 2, Q("0.49 in")),
    Sketcher.Constraint("DistanceX", -1, 1, 0, 2, Q("0.37 in")),
])
pad16 = body.newObject("PartDesign::Pad", "Pad015")
pad16.Profile = sketch16
pad16.Length = Q("0.565 in")
pad16.Reversed = True

# Sketch on XZ plane
sketch17 = body.newObject("Sketcher::SketchObject", "Sketch016")
sketch17.AttachmentSupport = (doc.getObject("XZ_Plane"), [""])
sketch17.MapMode = "FlatFace"
sketch17.AttachmentOffset = App.Placement(V(0, 0, -0.635 * 25.4), App.Rotation())
add_polygon(sketch17, [(9.398, -12.446), (9.398, -4.6228), (15.748, -4.6228), (15.748, -12.446)])  # lines 0-3
add_polygon(sketch17, [(33.528, -12.446), (33.528, -4.6228), (39.878, -4.6228), (39.878, -12.446)])  # lines 4-7
sketch17.addConstraint([
    Sketcher.Constraint("Vertical", 0),
    Sketcher.Constraint("Horizontal", 1),
    Sketcher.Constraint("Vertical", 2),
    Sketcher.Constraint("Horizontal", 3),
    Sketcher.Constraint("Vertical", 4),
    Sketcher.Constraint("Horizontal", 5),
    Sketcher.Constraint("Vertical", 6),
    Sketcher.Constraint("Horizontal", 7),
    Sketcher.Constraint("Horizontal", 1, 2, 4, 2),
    Sketcher.Constraint("Horizontal", 3, 2, 6, 2),
    Sketcher.Constraint("Equal", 3, 5),
    Sketcher.Constraint("DistanceX", 1, 1, 1, 2, Q("0.25 in")),
    Sketcher.Constraint("DistanceX", 1, 2, 4, 2, Q("0.7 in")),
    Sketcher.Constraint("DistanceY", 0, 1, 0, 2, Q("0.308 in")),
    Sketcher.Constraint("DistanceX", -1, 1, 0, 2, Q("0.37 in")),
    Sketcher.Constraint("DistanceY", 2, 2, -1, 1, Q("0.49 in")),
])
pocket1 = body.newObject("PartDesign::Pocket", "Pocket")
pocket1.Profile = sketch17
pocket1.Length = Q("0.33 in")
pocket1.Reversed = True

# Sketch on XY plane
sketch18 = body.newObject("Sketcher::SketchObject", "Sketch017")
sketch18.AttachmentSupport = (doc.getObject("XY_Plane"), [""])
sketch18.MapMode = "FlatFace"
add_polygon(sketch18, [(11.938, 11.4935), (9.738295, 10.2235), (9.738295, 7.6835), (11.938, 6.4135), (14.137705, 7.6835), (14.137705, 10.2235)])  # lines 0-5
add_polygon(sketch18, [(37.338, 11.4935), (35.138295, 10.2235), (35.138295, 7.6835), (37.338, 6.4135), (39.537705, 7.6835), (39.537705, 10.2235)])  # lines 6-11
sketch18.addGeometry(Part.LineSegment(V(32.236073, 13.665748, 0), V(17.039927, 13.665748, 0)), False)  # 12
sketch18.addGeometry(Part.ArcOfCircle(Part.Circle(V(17.039927, 12.395748, 0), V(0, 0, 1), 1.27), math.radians(90), math.radians(186.340192)), False)  # 13
sketch18.addGeometry(Part.LineSegment(V(15.777694, 12.2555, 0), V(16.511472, 5.6515, 0)), False)  # 14
sketch18.addGeometry(Part.ArcOfCircle(Part.Circle(V(17.773704, 5.791748, 0), V(0, 0, 1), 1.27), math.radians(-173.659808), math.radians(-90)), False)  # 15
sketch18.addGeometry(Part.LineSegment(V(17.773704, 4.521748, 0), V(31.502296, 4.521748, 0)), False)  # 16
sketch18.addGeometry(Part.ArcOfCircle(Part.Circle(V(31.502296, 5.791748, 0), V(0, 0, 1), 1.27), math.radians(-90), math.radians(-6.340192)), False)  # 17
sketch18.addGeometry(Part.LineSegment(V(32.764528, 5.6515, 0), V(33.498306, 12.2555, 0)), False)  # 18
sketch18.addGeometry(Part.ArcOfCircle(Part.Circle(V(32.236073, 12.395748, 0), V(0, 0, 1), 1.27), math.radians(-6.340192), math.radians(90)), False)  # 19
sketch18.addConstraint([
    Sketcher.Constraint("Tangent", 12, 2, 13, 1),
    Sketcher.Constraint("Tangent", 13, 2, 14, 1),
    Sketcher.Constraint("Tangent", 14, 2, 15, 1),
    Sketcher.Constraint("Tangent", 15, 2, 16, 1),
    Sketcher.Constraint("Tangent", 16, 2, 17, 1),
    Sketcher.Constraint("Tangent", 17, 2, 18, 1),
    Sketcher.Constraint("Tangent", 18, 2, 19, 1),
    Sketcher.Constraint("Tangent", 19, 2, 12, 1),
    Sketcher.Constraint("Vertical", 1),
    Sketcher.Constraint("Vertical", 4),
    Sketcher.Constraint("Vertical", 7),
    Sketcher.Constraint("Vertical", 10),
    Sketcher.Constraint("Horizontal", 12),
    Sketcher.Constraint("Horizontal", 16),
    Sketcher.Constraint("Equal", 13, 15),
    Sketcher.Constraint("Equal", 15, 17),
    Sketcher.Constraint("Equal", 17, 19),
    Sketcher.Constraint("Parallel", 0, 3),
    Sketcher.Constraint("Parallel", 2, 5),
    Sketcher.Constraint("Parallel", 3, 6),
    Sketcher.Constraint("Parallel", 5, 8),
    Sketcher.Constraint("Parallel", 6, 9),
    Sketcher.Constraint("Parallel", 8, 11),
    Sketcher.Constraint("Horizontal", 1, 2, 3, 2),
    Sketcher.Constraint("Horizontal", 0, 2, 4, 2),
    Sketcher.Constraint("Horizontal", 4, 2, 6, 2),
    Sketcher.Constraint("Horizontal", 3, 2, 7, 2),
    Sketcher.Constraint("Horizontal", 2, 2, 8, 2),
    Sketcher.Constraint("Horizontal", 7, 2, 9, 2),
    Sketcher.Constraint("Horizontal", 6, 2, 10, 2),
    Sketcher.Constraint("Horizontal", 14, 2, 17, 2),
    Sketcher.Constraint("Vertical", 2, 2, 5, 2),
    Sketcher.Constraint("Radius", 13, Q("0.05 in")),
    Sketcher.Constraint("DistanceY", 1, 2, 1, 1, Q("0.1 in")),
    Sketcher.Constraint("Angle", 0, Q("-150 deg")),
    Sketcher.Constraint("Distance", 0, Q("0.1 in")),
    Sketcher.Constraint("DistanceX", -1, 1, 2, 2, Q("0.47 in")),
    Sketcher.Constraint("DistanceX", -1, 1, 8, 2, Q("1.47 in")),
    Sketcher.Constraint("DistanceY", 15, 3, 13, 3, Q("0.26 in")),
    Sketcher.Constraint("DistanceY", 4, 2, 13, 2, Q("0.08 in")),
    Sketcher.Constraint("Distance", 14, Q("0.2616 in")),
    Sketcher.Constraint("DistanceY", -1, 1, 0, 2, Q("0.4025 in")),
    Sketcher.Constraint("DistanceX", 16, 1, 16, 2, Q("13.728591 mm")),
    Sketcher.Constraint("DistanceX", 0, 2, 17, 3, Q("21.764 mm")),
])
pad17 = body.newObject("PartDesign::Pad", "Pad016")
pad17.Profile = sketch18
pad17.Length = Q("0.28 in")

doc.recompute()
